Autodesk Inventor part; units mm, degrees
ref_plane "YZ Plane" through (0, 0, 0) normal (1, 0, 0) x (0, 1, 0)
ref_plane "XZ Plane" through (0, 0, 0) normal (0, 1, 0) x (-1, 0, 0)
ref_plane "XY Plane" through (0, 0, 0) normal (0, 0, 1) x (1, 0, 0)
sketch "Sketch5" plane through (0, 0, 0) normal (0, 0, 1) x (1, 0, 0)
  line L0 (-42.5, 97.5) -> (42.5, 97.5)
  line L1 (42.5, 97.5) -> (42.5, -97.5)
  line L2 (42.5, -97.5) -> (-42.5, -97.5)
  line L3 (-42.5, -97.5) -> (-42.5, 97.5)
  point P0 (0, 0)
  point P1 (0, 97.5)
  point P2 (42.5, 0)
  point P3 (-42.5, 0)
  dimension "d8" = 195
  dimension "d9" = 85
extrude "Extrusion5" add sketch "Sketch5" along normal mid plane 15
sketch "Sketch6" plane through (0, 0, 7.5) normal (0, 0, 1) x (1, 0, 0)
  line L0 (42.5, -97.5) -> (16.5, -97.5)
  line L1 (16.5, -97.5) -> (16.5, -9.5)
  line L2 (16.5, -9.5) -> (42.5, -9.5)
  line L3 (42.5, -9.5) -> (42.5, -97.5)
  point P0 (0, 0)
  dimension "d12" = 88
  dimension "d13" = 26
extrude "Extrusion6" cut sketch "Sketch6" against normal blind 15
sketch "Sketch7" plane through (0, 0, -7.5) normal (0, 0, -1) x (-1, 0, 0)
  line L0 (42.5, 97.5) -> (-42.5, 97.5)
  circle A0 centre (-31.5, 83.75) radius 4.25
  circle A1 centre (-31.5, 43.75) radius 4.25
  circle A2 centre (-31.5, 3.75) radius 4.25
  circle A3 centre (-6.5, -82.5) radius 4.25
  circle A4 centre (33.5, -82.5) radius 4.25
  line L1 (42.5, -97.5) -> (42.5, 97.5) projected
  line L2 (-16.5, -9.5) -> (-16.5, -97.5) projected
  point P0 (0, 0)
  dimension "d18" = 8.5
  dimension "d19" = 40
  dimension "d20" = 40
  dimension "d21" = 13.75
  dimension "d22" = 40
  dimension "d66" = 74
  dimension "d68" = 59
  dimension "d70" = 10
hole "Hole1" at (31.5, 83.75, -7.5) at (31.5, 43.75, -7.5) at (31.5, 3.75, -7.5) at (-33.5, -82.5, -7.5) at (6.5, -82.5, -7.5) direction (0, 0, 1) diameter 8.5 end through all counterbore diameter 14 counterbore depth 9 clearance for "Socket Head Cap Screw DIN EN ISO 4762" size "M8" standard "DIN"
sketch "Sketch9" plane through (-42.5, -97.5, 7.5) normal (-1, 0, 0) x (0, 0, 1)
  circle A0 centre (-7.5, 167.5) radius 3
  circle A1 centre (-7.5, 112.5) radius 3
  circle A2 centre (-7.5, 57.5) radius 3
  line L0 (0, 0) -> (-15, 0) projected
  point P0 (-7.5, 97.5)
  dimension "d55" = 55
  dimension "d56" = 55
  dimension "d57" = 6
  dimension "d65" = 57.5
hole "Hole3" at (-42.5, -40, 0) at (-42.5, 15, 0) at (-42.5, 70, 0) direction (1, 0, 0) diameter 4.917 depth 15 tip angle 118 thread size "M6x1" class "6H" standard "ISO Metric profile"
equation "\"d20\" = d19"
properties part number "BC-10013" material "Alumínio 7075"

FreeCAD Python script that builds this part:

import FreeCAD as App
import Part
import Sketcher

V = App.Vector
Q = App.Units.Quantity

doc = App.newDocument("Part")
body = doc.addObject("PartDesign::Body", "Body")

# Sketch on XY plane
sketch1 = doc.addObject("Sketcher::SketchObject", "Sketch")
body.addObject(sketch1)
sketch1.AttachmentSupport = (doc.XY_Plane, [""])
sketch1.MapMode = "FlatFace"
sketch1.addGeometry([
    Part.LineSegment(V(42, 98, 0), V(-42, 98, 0)),
    Part.LineSegment(V(-42, 98, 0), V(-42, -98, 0)),
    Part.LineSegment(V(-42, -98, 0), V(42, -98, 0)),
    Part.LineSegment(V(42, -98, 0), V(42, 98, 0)),
], False)
sketch1.addConstraint([
    Sketcher.Constraint("Coincident", 0, 2, 1, 1),
    Sketcher.Constraint("Coincident", 1, 2, 2, 1),
    Sketcher.Constraint("Coincident", 2, 2, 3, 1),
    Sketcher.Constraint("Coincident", 3, 2, 0, 1),
    Sketcher.Constraint("Horizontal", 0),
    Sketcher.Constraint("Vertical", 1),
    Sketcher.Constraint("Horizontal", 2),
    Sketcher.Constraint("Vertical", 3),
    Sketcher.Constraint("Symmetric", 0, 2, 2, 2, -1, 1),
    Sketcher.Constraint("DistanceX", 0, 2, 0, 1, Q("85 mm")),
    Sketcher.Constraint("DistanceY", 1, 2, 1, 1, Q("195 mm")),
])
pad1 = doc.addObject("PartDesign::Pad", "Pad")
body.addObject(pad1)
pad1.Profile = sketch1
pad1.Length = 15
pad1.Midplane = True

# Sketch on XY plane
sketch2 = doc.addObject("Sketcher::SketchObject", "Sketch001")
body.addObject(sketch2)
sketch2.AttachmentSupport = (doc.XY_Plane, [""])
sketch2.MapMode = "FlatFace"
sketch2.AttachmentOffset = App.Placement(V(0, 0, 7.5), App.Rotation())
sketch2.addGeometry([
    Part.LineSegment(V(16, -98, 0), V(42, -98, 0)),
    Part.LineSegment(V(42, -98, 0), V(42, -10, 0)),
    Part.LineSegment(V(42, -10, 0), V(16, -10, 0)),
    Part.LineSegment(V(16, -10, 0), V(16, -98, 0)),
], False)
sketch2.addConstraint([
    Sketcher.Constraint("Coincident", 0, 2, 1, 1),
    Sketcher.Constraint("Coincident", 1, 2, 2, 1),
    Sketcher.Constraint("Coincident", 2, 2, 3, 1),
    Sketcher.Constraint("Coincident", 3, 2, 0, 1),
    Sketcher.Constraint("Horizontal", 0),
    Sketcher.Constraint("Vertical", 1),
    Sketcher.Constraint("Horizontal", 2),
    Sketcher.Constraint("Vertical", 3),
    Sketcher.Constraint("DistanceX", 0, 1, 0, 2, Q("26 mm")),
    Sketcher.Constraint("DistanceY", 1, 1, 1, 2, Q("88 mm")),
    Sketcher.Constraint("DistanceX", -1, 1, 0, 2, Q("42.5 mm")),
    Sketcher.Constraint("DistanceY", 0, 2, -1, 1, Q("97.5 mm")),
])
pocket1 = doc.addObject("PartDesign::Pocket", "Pocket")
body.addObject(pocket1)
pocket1.Profile = sketch2
pocket1.Length = 15

# Sketch on XY plane
sketch3 = doc.addObject("Sketcher::SketchObject", "Sketch002")
body.addObject(sketch3)
sketch3.AttachmentSupport = (doc.XY_Plane, [""])
sketch3.MapMode = "FlatFace"
sketch3.AttachmentOffset = App.Placement(V(0, 0, -7.5), App.Rotation())
sketch3.addGeometry([
    Part.Circle(V(31.5, 83.8, 0), V(0, 0, 1), 4.2),  # 0
    Part.Circle(V(31.5, 43.8, 0), V(0, 0, 1), 4.2),  # 1
    Part.Circle(V(31.5, 3.8, 0), V(0, 0, 1), 4.2),  # 2
    Part.Circle(V(-33.5, -82.5, 0), V(0, 0, 1), 4.2),  # 3
    Part.Circle(V(6.5, -82.5, 0), V(0, 0, 1), 4.2),  # 4
], False)
sketch3.addConstraint([
    Sketcher.Constraint("Equal", 0, 1),
    Sketcher.Constraint("Equal", 1, 2),
    Sketcher.Constraint("Equal", 2, 3),
    Sketcher.Constraint("Equal", 3, 4),
    Sketcher.Constraint("Horizontal", 3, 3, 4, 3),
    Sketcher.Constraint("Vertical", 0, 3, 1, 3),
    Sketcher.Constraint("Vertical", 1, 3, 2, 3),
    Sketcher.Constraint("Diameter", 0, Q("8.5 mm")),
    Sketcher.Constraint("DistanceY", 1, 3, 0, 3, Q("40 mm")),
    Sketcher.Constraint("DistanceY", 2, 3, 1, 3, Q("40 mm")),
    Sketcher.Constraint("DistanceX", 3, 3, 2, 3, Q("65 mm")),
    Sketcher.Constraint("DistanceX", 3, 3, 4, 3, Q("40 mm")),
    Sketcher.Constraint("DistanceX", -1, 1, 0, 3, Q("31.5 mm")),
    Sketcher.Constraint("DistanceY", 3, 3, -1, 1, Q("82.5 mm")),
    Sketcher.Constraint("DistanceY", -1, 1, 0, 3, Q("83.75 mm")),
])
doc.recompute()
hole = doc.addObject("PartDesign::Hole", "Hole")
body.addObject(hole)
hole.Profile = sketch3
hole.ThreadType = "None"
hole.Diameter = 8.5
hole.DepthType = "ThroughAll"
hole.HoleCutType = "Counterbore"
hole.HoleCutDiameter = 14
hole.HoleCutDepth = 9
hole.Reversed = True

# Sketch on YZ plane
sketch4 = doc.addObject("Sketcher::SketchObject", "Sketch003")
body.addObject(sketch4)
sketch4.AttachmentSupport = (doc.YZ_Plane, [""])
sketch4.MapMode = "FlatFace"
sketch4.AttachmentOffset = App.Placement(V(0, 0, -42.5), App.Rotation())
sketch4.addGeometry([
    Part.Circle(V(-40, 0, 0), V(0, 0, 1), 2.5),
    Part.Circle(V(15, 0, 0), V(0, 0, 1), 2.5),
    Part.Circle(V(70, 0, 0), V(0, 0, 1), 2.5),
], False)
sketch4.addConstraint([
    Sketcher.Constraint("Equal", 0, 1),
    Sketcher.Constraint("Equal", 1, 2),
    Sketcher.Constraint("PointOnObject", 0, 3, -1),
    Sketcher.Constraint("PointOnObject", 1, 3, -1),
    Sketcher.Constraint("PointOnObject", 2, 3, -1),
    Sketcher.Constraint("Diameter", 0, Q("4.917 mm")),
    Sketcher.Constraint("DistanceX", 0, 3, -1, 1, Q("40 mm")),
    Sketcher.Constraint("DistanceX", -1, 1, 1, 3, Q("15 mm")),
    Sketcher.Constraint("DistanceX", -1, 1, 2, 3, Q("70 mm")),
])
doc.recompute()
hole2 = doc.addObject("PartDesign::Hole", "Hole001")
body.addObject(hole2)
hole2.Profile = sketch4
hole2.ThreadType = "None"
hole2.Diameter = 4.917
hole2.DepthType = "Dimension"
hole2.Depth = 15
hole2.DrillPoint = "Angled"
hole2.DrillPointAngle = 118
hole2.Reversed = True

doc.recompute()
